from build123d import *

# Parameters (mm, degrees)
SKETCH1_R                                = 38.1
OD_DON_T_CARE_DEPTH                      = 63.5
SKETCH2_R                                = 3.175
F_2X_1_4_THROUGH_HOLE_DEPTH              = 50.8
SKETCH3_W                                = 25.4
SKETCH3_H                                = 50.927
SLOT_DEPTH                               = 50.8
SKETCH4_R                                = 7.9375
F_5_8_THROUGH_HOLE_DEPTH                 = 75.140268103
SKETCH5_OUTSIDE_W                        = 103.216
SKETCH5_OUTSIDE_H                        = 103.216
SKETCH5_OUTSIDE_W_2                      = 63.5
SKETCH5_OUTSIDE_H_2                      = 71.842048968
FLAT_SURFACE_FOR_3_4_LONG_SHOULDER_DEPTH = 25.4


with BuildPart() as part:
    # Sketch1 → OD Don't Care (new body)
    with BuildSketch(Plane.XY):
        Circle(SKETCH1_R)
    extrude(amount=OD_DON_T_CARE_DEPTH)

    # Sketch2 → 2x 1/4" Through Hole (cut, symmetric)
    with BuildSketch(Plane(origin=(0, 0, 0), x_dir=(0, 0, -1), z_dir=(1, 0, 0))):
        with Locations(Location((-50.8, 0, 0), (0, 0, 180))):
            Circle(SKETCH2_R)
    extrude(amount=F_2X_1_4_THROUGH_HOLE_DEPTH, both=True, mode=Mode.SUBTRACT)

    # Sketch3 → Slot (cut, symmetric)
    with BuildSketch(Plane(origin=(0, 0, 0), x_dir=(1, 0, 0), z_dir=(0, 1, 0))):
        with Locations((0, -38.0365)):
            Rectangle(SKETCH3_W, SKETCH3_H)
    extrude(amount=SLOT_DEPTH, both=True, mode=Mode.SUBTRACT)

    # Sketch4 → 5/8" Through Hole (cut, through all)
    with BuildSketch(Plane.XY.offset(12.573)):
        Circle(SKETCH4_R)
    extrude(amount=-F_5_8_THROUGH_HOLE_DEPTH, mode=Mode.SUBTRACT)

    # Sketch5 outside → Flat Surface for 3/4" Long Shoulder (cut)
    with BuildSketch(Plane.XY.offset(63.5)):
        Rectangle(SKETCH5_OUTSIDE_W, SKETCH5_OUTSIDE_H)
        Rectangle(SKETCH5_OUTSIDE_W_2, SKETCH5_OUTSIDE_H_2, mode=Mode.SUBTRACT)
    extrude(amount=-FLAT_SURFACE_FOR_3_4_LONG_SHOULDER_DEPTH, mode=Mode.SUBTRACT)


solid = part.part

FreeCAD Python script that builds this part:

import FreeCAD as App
import Part
import Sketcher
Q = App.Units.Quantity

doc = App.newDocument("Part")
body = doc.addObject("PartDesign::Body", "Body")

sketch1 = body.newObject("Sketcher::SketchObject", "Sketch")
sketch1.AttachmentSupport = (doc.getObject("XY_Plane"), [""])
sketch1.MapMode = "FlatFace"
sketch1.addGeometry(Part.Circle(App.Vector(0, 0, 0), App.Vector(0, 0, 1), 38.1), False)
sketch1.addConstraint(Sketcher.Constraint("Coincident", 0, 3, -1, 1))
sketch1.addConstraint(Sketcher.Constraint("Diameter", 0, Q("3 in")))
pad1 = body.newObject("PartDesign::Pad", "Pad")
pad1.Profile = sketch1
pad1.Length = Q("2.5 in")

sketch2 = body.newObject("Sketcher::SketchObject", "Sketch001")
sketch2.AttachmentSupport = (doc.getObject("YZ_Plane"), [""])
sketch2.MapMode = "FlatFace"
sketch2.addGeometry(Part.Circle(App.Vector(0, 50.8, 0), App.Vector(0, 0, 1), 3.175), False)
sketch2.addConstraint(Sketcher.Constraint("PointOnObject", 0, 3, -2))
sketch2.addConstraint(Sketcher.Constraint("Diameter", 0, Q("0.25 in")))
sketch2.addConstraint(Sketcher.Constraint("DistanceY", -1, 1, 0, 3, Q("2 in")))
pocket1 = body.newObject("PartDesign::Pocket", "Pocket")
pocket1.Profile = sketch2
pocket1.Length = Q("4 in")
pocket1.Midplane = True

sketch3 = body.newObject("Sketcher::SketchObject", "Sketch002")
sketch3.AttachmentSupport = (doc.getObject("XZ_Plane"), [""])
sketch3.MapMode = "FlatFace"
sketch3.addGeometry(Part.LineSegment(App.Vector(-12.7, 12.573, 0), App.Vector(-12.7, 63.5, 0)), False)
sketch3.addGeometry(Part.LineSegment(App.Vector(-12.7, 63.5, 0), App.Vector(12.7, 63.5, 0)), False)
sketch3.addGeometry(Part.LineSegment(App.Vector(12.7, 63.5, 0), App.Vector(12.7, 12.573, 0)), False)
sketch3.addGeometry(Part.LineSegment(App.Vector(12.7, 12.573, 0), App.Vector(-12.7, 12.573, 0)), False)
sketch3.addConstraint(Sketcher.Constraint("Coincident", 0, 2, 1, 1))
sketch3.addConstraint(Sketcher.Constraint("Coincident", 1, 2, 2, 1))
sketch3.addConstraint(Sketcher.Constraint("Coincident", 2, 2, 3, 1))
sketch3.addConstraint(Sketcher.Constraint("Coincident", 3, 2, 0, 1))
sketch3.addConstraint(Sketcher.Constraint("Vertical", 0))
sketch3.addConstraint(Sketcher.Constraint("Horizontal", 1))
sketch3.addConstraint(Sketcher.Constraint("Vertical", 2))
sketch3.addConstraint(Sketcher.Constraint("Horizontal", 3))
sketch3.addConstraint(Sketcher.Constraint("DistanceX", 1, 1, 1, 2, Q("1 in")))
sketch3.addConstraint(Sketcher.Constraint("DistanceX", 0, 2, -1, 1, Q("0.5 in")))
sketch3.addConstraint(Sketcher.Constraint("DistanceY", -1, 1, 0, 2, Q("2.5 in")))
sketch3.addConstraint(Sketcher.Constraint("DistanceY", 0, 1, 0, 2, Q("2.005 in")))
pocket2 = body.newObject("PartDesign::Pocket", "Pocket001")
pocket2.Profile = sketch3
pocket2.Length = Q("4 in")
pocket2.Midplane = True

sketch4 = body.newObject("Sketcher::SketchObject", "Sketch003")
sketch4.AttachmentSupport = (doc.getObject("XY_Plane"), [""])
sketch4.MapMode = "FlatFace"
sketch4.AttachmentOffset = App.Placement(App.Vector(0, 0, 0.495 * 25.4), App.Rotation())
sketch4.addGeometry(Part.Circle(App.Vector(0, 0, 0), App.Vector(0, 0, 1), 7.9375), False)
sketch4.addConstraint(Sketcher.Constraint("Coincident", 0, 3, -1, 1))
sketch4.addConstraint(Sketcher.Constraint("Diameter", 0, Q("0.625 in")))
pocket3 = body.newObject("PartDesign::Pocket", "Pocket002")
pocket3.Profile = sketch4
pocket3.Type = "ThroughAll"

sketch5 = body.newObject("Sketcher::SketchObject", "Sketch004")
sketch5.AttachmentSupport = (doc.getObject("XY_Plane"), [""])
sketch5.MapMode = "FlatFace"
sketch5.AttachmentOffset = App.Placement(App.Vector(0, 0, 2.5 * 25.4), App.Rotation())
sketch5.addGeometry(Part.LineSegment(App.Vector(-51.608, 51.608, 0), App.Vector(-51.608, -51.608, 0)), False)
sketch5.addGeometry(Part.LineSegment(App.Vector(-51.608, -51.608, 0), App.Vector(51.608, -51.608, 0)), False)
sketch5.addGeometry(Part.LineSegment(App.Vector(51.608, -51.608, 0), App.Vector(51.608, 51.608, 0)), False)
sketch5.addGeometry(Part.LineSegment(App.Vector(51.608, 51.608, 0), App.Vector(-51.608, 51.608, 0)), False)
sketch5.addGeometry(Part.LineSegment(App.Vector(31.75, -35.921024, 0), App.Vector(-31.75, -35.921024, 0)), False)
sketch5.addGeometry(Part.LineSegment(App.Vector(-31.75, -35.921024, 0), App.Vector(-31.75, 35.921024, 0)), False)
sketch5.addGeometry(Part.LineSegment(App.Vector(-31.75, 35.921024, 0), App.Vector(31.75, 35.921024, 0)), False)
sketch5.addGeometry(Part.LineSegment(App.Vector(31.75, 35.921024, 0), App.Vector(31.75, -35.921024, 0)), False)
sketch5.addConstraint(Sketcher.Constraint("Coincident", 0, 2, 1, 1))
sketch5.addConstraint(Sketcher.Constraint("Coincident", 1, 2, 2, 1))
sketch5.addConstraint(Sketcher.Constraint("Coincident", 2, 2, 3, 1))
sketch5.addConstraint(Sketcher.Constraint("Coincident", 3, 2, 0, 1))
sketch5.addConstraint(Sketcher.Constraint("Coincident", 4, 2, 5, 1))
sketch5.addConstraint(Sketcher.Constraint("Coincident", 5, 2, 6, 1))
sketch5.addConstraint(Sketcher.Constraint("Coincident", 6, 2, 7, 1))
sketch5.addConstraint(Sketcher.Constraint("Coincident", 7, 2, 4, 1))
sketch5.addConstraint(Sketcher.Constraint("Vertical", 0))
sketch5.addConstraint(Sketcher.Constraint("Horizontal", 1))
sketch5.addConstraint(Sketcher.Constraint("Vertical", 2))
sketch5.addConstraint(Sketcher.Constraint("Horizontal", 3))
sketch5.addConstraint(Sketcher.Constraint("Horizontal", 4))
sketch5.addConstraint(Sketcher.Constraint("Vertical", 5))
sketch5.addConstraint(Sketcher.Constraint("Horizontal", 6))
sketch5.addConstraint(Sketcher.Constraint("Vertical", 7))
sketch5.addConstraint(Sketcher.Constraint("Symmetric", 0, 2, 2, 2, -1, 1))
sketch5.addConstraint(Sketcher.Constraint("Symmetric", 4, 2, 6, 2, -1, 1))
sketch5.addConstraint(Sketcher.Constraint("Equal", 3, 0))
sketch5.addConstraint(Sketcher.Constraint("DistanceX", 4, 2, 4, 1, Q("2.5 in")))
sketch5.addConstraint(Sketcher.Constraint("DistanceX", 1, 1, 1, 2, 103.216))
sketch5.addConstraint(Sketcher.Constraint("DistanceY", 5, 1, 5, 2, 71.842049))
pocket4 = body.newObject("PartDesign::Pocket", "Pocket003")
pocket4.Profile = sketch5
pocket4.Length = Q("1 in")

doc.recompute()
